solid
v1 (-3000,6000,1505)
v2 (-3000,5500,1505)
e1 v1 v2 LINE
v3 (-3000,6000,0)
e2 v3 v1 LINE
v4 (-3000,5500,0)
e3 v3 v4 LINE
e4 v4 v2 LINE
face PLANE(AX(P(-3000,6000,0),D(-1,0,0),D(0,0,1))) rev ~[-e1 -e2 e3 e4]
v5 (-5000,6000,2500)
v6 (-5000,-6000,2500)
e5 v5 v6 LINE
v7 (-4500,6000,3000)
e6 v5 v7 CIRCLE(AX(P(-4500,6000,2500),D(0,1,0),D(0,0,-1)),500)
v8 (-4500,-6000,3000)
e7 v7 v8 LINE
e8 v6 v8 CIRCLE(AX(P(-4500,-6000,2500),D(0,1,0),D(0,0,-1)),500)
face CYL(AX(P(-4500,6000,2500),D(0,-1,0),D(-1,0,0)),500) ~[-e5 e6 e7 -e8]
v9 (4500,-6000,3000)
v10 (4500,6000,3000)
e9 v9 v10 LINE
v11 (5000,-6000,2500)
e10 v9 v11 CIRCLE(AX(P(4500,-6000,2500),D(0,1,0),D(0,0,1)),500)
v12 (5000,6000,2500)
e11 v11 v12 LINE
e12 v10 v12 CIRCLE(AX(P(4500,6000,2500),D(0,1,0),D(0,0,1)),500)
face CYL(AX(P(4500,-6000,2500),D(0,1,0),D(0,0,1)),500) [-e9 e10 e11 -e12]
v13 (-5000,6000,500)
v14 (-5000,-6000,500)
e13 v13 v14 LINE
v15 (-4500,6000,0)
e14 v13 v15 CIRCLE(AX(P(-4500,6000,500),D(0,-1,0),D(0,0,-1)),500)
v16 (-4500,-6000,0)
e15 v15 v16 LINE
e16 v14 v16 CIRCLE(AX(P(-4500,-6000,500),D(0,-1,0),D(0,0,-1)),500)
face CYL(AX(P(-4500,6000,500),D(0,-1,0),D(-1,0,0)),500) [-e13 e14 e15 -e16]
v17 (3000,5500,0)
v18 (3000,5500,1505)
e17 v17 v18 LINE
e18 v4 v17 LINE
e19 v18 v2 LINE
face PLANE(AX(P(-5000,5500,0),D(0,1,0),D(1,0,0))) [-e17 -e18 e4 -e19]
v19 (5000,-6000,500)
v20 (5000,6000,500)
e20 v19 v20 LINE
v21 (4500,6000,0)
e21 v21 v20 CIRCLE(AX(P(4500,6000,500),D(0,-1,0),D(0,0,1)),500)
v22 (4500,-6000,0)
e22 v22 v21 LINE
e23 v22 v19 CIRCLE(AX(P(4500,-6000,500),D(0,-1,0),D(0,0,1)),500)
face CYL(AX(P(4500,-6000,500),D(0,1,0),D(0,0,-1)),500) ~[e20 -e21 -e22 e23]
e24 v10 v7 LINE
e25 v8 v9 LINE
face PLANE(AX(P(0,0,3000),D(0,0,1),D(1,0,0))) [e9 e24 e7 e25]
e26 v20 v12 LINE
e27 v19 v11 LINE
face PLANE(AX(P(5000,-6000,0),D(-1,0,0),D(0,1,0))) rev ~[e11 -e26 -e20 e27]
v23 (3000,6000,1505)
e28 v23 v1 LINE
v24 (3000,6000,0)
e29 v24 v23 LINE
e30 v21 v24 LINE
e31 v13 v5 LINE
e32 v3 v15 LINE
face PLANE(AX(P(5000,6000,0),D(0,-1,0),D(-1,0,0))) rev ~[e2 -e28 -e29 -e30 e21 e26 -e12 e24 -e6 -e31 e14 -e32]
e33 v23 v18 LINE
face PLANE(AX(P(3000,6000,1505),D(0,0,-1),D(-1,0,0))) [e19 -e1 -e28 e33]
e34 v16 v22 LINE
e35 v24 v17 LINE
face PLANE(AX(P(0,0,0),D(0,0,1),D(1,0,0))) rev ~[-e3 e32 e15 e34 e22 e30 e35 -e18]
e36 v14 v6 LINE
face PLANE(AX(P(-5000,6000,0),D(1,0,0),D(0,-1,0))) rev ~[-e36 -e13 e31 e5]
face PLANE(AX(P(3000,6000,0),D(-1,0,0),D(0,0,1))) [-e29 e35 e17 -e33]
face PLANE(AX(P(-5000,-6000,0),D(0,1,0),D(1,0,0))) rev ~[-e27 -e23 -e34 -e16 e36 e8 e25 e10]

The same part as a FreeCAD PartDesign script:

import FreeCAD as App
import Part
import Sketcher

V = App.Vector


def edges_at(feature, points):
    """Names of the edges that pass closest to the given points."""
    edges = feature.Shape.Edges
    near = lambda p: min(range(len(edges)), key=lambda i: edges[i].distToShape(Part.Vertex(*p))[0])
    return sorted({f"Edge{near(p) + 1}" for p in points})


def add_polygon(sketch, points):
    """Adds a closed chain of lines whose ends are joined by coincident constraints."""
    first, n = sketch.GeometryCount, len(points)
    for a, b in zip(points, points[1:] + points[:1]):
        sketch.addGeometry(Part.LineSegment(App.Vector(*a, 0), App.Vector(*b, 0)), False)
    for i in range(n):
        sketch.addConstraint(Sketcher.Constraint("Coincident", first + i, 2, first + (i + 1) % n, 1))

doc = App.newDocument("Part")
body = doc.addObject("PartDesign::Body", "Body")

# Sketch on XY plane
sketch1 = doc.addObject("Sketcher::SketchObject", "Sketch")
body.addObject(sketch1)
sketch1.AttachmentSupport = (doc.XY_Plane, [""])
sketch1.MapMode = "FlatFace"
add_polygon(sketch1, [(-5000, 6000), (-5000, -6000), (5000, -6000), (5000, 6000)])  # lines 0-3
sketch1.addConstraint(Sketcher.Constraint("Vertical", 0))
sketch1.addConstraint(Sketcher.Constraint("Horizontal", 1))
sketch1.addConstraint(Sketcher.Constraint("Vertical", 2))
sketch1.addConstraint(Sketcher.Constraint("Horizontal", 3))
sketch1.addConstraint(Sketcher.Constraint("Symmetric", 0, 2, 2, 2, -1, 1))
sketch1.addConstraint(Sketcher.Constraint("DistanceX", 1, 1, 1, 2, 10000.0))
sketch1.addConstraint(Sketcher.Constraint("DistanceY", 0, 2, 0, 1, 12000.0))
pad1 = doc.addObject("PartDesign::Pad", "Pad")
body.addObject(pad1)
pad1.Profile = sketch1
pad1.Length = 3000

# Sketch on XZ plane
sketch2 = doc.addObject("Sketcher::SketchObject", "Sketch001")
body.addObject(sketch2)
sketch2.AttachmentSupport = (doc.XZ_Plane, [""])
sketch2.MapMode = "FlatFace"
sketch2.AttachmentOffset = App.Placement(V(0, 0, -6000), App.Rotation())
add_polygon(sketch2, [(3000, 0), (-3000, 0), (-3000, 1505), (3000, 1505)])  # lines 0-3
sketch2.addConstraint(Sketcher.Constraint("Horizontal", 0))
sketch2.addConstraint(Sketcher.Constraint("Vertical", 1))
sketch2.addConstraint(Sketcher.Constraint("Horizontal", 2))
sketch2.addConstraint(Sketcher.Constraint("Vertical", 3))
sketch2.addConstraint(Sketcher.Constraint("Symmetric", 0, 2, 3, 2, -1, 1))
sketch2.addConstraint(Sketcher.Constraint("DistanceY", 1, 1, 1, 2, 1505.0))
sketch2.addConstraint(Sketcher.Constraint("DistanceX", 0, 2, -1, 1, 3000.0))
pocket1 = doc.addObject("PartDesign::Pocket", "Pocket")
body.addObject(pocket1)
pocket1.Profile = sketch2
pocket1.Length = 500
pocket1.Reversed = True
doc.recompute()

fillet = doc.addObject("PartDesign::Fillet", "Fillet")
body.addObject(fillet)
fillet.Base = (pocket1, edges_at(pocket1, [
    (5000, 0, 0),
    (5000, 0, 3000),
    (-5000, 0, 0),
    (-5000, 0, 3000),
]))
fillet.Radius = 500

doc.recompute()
